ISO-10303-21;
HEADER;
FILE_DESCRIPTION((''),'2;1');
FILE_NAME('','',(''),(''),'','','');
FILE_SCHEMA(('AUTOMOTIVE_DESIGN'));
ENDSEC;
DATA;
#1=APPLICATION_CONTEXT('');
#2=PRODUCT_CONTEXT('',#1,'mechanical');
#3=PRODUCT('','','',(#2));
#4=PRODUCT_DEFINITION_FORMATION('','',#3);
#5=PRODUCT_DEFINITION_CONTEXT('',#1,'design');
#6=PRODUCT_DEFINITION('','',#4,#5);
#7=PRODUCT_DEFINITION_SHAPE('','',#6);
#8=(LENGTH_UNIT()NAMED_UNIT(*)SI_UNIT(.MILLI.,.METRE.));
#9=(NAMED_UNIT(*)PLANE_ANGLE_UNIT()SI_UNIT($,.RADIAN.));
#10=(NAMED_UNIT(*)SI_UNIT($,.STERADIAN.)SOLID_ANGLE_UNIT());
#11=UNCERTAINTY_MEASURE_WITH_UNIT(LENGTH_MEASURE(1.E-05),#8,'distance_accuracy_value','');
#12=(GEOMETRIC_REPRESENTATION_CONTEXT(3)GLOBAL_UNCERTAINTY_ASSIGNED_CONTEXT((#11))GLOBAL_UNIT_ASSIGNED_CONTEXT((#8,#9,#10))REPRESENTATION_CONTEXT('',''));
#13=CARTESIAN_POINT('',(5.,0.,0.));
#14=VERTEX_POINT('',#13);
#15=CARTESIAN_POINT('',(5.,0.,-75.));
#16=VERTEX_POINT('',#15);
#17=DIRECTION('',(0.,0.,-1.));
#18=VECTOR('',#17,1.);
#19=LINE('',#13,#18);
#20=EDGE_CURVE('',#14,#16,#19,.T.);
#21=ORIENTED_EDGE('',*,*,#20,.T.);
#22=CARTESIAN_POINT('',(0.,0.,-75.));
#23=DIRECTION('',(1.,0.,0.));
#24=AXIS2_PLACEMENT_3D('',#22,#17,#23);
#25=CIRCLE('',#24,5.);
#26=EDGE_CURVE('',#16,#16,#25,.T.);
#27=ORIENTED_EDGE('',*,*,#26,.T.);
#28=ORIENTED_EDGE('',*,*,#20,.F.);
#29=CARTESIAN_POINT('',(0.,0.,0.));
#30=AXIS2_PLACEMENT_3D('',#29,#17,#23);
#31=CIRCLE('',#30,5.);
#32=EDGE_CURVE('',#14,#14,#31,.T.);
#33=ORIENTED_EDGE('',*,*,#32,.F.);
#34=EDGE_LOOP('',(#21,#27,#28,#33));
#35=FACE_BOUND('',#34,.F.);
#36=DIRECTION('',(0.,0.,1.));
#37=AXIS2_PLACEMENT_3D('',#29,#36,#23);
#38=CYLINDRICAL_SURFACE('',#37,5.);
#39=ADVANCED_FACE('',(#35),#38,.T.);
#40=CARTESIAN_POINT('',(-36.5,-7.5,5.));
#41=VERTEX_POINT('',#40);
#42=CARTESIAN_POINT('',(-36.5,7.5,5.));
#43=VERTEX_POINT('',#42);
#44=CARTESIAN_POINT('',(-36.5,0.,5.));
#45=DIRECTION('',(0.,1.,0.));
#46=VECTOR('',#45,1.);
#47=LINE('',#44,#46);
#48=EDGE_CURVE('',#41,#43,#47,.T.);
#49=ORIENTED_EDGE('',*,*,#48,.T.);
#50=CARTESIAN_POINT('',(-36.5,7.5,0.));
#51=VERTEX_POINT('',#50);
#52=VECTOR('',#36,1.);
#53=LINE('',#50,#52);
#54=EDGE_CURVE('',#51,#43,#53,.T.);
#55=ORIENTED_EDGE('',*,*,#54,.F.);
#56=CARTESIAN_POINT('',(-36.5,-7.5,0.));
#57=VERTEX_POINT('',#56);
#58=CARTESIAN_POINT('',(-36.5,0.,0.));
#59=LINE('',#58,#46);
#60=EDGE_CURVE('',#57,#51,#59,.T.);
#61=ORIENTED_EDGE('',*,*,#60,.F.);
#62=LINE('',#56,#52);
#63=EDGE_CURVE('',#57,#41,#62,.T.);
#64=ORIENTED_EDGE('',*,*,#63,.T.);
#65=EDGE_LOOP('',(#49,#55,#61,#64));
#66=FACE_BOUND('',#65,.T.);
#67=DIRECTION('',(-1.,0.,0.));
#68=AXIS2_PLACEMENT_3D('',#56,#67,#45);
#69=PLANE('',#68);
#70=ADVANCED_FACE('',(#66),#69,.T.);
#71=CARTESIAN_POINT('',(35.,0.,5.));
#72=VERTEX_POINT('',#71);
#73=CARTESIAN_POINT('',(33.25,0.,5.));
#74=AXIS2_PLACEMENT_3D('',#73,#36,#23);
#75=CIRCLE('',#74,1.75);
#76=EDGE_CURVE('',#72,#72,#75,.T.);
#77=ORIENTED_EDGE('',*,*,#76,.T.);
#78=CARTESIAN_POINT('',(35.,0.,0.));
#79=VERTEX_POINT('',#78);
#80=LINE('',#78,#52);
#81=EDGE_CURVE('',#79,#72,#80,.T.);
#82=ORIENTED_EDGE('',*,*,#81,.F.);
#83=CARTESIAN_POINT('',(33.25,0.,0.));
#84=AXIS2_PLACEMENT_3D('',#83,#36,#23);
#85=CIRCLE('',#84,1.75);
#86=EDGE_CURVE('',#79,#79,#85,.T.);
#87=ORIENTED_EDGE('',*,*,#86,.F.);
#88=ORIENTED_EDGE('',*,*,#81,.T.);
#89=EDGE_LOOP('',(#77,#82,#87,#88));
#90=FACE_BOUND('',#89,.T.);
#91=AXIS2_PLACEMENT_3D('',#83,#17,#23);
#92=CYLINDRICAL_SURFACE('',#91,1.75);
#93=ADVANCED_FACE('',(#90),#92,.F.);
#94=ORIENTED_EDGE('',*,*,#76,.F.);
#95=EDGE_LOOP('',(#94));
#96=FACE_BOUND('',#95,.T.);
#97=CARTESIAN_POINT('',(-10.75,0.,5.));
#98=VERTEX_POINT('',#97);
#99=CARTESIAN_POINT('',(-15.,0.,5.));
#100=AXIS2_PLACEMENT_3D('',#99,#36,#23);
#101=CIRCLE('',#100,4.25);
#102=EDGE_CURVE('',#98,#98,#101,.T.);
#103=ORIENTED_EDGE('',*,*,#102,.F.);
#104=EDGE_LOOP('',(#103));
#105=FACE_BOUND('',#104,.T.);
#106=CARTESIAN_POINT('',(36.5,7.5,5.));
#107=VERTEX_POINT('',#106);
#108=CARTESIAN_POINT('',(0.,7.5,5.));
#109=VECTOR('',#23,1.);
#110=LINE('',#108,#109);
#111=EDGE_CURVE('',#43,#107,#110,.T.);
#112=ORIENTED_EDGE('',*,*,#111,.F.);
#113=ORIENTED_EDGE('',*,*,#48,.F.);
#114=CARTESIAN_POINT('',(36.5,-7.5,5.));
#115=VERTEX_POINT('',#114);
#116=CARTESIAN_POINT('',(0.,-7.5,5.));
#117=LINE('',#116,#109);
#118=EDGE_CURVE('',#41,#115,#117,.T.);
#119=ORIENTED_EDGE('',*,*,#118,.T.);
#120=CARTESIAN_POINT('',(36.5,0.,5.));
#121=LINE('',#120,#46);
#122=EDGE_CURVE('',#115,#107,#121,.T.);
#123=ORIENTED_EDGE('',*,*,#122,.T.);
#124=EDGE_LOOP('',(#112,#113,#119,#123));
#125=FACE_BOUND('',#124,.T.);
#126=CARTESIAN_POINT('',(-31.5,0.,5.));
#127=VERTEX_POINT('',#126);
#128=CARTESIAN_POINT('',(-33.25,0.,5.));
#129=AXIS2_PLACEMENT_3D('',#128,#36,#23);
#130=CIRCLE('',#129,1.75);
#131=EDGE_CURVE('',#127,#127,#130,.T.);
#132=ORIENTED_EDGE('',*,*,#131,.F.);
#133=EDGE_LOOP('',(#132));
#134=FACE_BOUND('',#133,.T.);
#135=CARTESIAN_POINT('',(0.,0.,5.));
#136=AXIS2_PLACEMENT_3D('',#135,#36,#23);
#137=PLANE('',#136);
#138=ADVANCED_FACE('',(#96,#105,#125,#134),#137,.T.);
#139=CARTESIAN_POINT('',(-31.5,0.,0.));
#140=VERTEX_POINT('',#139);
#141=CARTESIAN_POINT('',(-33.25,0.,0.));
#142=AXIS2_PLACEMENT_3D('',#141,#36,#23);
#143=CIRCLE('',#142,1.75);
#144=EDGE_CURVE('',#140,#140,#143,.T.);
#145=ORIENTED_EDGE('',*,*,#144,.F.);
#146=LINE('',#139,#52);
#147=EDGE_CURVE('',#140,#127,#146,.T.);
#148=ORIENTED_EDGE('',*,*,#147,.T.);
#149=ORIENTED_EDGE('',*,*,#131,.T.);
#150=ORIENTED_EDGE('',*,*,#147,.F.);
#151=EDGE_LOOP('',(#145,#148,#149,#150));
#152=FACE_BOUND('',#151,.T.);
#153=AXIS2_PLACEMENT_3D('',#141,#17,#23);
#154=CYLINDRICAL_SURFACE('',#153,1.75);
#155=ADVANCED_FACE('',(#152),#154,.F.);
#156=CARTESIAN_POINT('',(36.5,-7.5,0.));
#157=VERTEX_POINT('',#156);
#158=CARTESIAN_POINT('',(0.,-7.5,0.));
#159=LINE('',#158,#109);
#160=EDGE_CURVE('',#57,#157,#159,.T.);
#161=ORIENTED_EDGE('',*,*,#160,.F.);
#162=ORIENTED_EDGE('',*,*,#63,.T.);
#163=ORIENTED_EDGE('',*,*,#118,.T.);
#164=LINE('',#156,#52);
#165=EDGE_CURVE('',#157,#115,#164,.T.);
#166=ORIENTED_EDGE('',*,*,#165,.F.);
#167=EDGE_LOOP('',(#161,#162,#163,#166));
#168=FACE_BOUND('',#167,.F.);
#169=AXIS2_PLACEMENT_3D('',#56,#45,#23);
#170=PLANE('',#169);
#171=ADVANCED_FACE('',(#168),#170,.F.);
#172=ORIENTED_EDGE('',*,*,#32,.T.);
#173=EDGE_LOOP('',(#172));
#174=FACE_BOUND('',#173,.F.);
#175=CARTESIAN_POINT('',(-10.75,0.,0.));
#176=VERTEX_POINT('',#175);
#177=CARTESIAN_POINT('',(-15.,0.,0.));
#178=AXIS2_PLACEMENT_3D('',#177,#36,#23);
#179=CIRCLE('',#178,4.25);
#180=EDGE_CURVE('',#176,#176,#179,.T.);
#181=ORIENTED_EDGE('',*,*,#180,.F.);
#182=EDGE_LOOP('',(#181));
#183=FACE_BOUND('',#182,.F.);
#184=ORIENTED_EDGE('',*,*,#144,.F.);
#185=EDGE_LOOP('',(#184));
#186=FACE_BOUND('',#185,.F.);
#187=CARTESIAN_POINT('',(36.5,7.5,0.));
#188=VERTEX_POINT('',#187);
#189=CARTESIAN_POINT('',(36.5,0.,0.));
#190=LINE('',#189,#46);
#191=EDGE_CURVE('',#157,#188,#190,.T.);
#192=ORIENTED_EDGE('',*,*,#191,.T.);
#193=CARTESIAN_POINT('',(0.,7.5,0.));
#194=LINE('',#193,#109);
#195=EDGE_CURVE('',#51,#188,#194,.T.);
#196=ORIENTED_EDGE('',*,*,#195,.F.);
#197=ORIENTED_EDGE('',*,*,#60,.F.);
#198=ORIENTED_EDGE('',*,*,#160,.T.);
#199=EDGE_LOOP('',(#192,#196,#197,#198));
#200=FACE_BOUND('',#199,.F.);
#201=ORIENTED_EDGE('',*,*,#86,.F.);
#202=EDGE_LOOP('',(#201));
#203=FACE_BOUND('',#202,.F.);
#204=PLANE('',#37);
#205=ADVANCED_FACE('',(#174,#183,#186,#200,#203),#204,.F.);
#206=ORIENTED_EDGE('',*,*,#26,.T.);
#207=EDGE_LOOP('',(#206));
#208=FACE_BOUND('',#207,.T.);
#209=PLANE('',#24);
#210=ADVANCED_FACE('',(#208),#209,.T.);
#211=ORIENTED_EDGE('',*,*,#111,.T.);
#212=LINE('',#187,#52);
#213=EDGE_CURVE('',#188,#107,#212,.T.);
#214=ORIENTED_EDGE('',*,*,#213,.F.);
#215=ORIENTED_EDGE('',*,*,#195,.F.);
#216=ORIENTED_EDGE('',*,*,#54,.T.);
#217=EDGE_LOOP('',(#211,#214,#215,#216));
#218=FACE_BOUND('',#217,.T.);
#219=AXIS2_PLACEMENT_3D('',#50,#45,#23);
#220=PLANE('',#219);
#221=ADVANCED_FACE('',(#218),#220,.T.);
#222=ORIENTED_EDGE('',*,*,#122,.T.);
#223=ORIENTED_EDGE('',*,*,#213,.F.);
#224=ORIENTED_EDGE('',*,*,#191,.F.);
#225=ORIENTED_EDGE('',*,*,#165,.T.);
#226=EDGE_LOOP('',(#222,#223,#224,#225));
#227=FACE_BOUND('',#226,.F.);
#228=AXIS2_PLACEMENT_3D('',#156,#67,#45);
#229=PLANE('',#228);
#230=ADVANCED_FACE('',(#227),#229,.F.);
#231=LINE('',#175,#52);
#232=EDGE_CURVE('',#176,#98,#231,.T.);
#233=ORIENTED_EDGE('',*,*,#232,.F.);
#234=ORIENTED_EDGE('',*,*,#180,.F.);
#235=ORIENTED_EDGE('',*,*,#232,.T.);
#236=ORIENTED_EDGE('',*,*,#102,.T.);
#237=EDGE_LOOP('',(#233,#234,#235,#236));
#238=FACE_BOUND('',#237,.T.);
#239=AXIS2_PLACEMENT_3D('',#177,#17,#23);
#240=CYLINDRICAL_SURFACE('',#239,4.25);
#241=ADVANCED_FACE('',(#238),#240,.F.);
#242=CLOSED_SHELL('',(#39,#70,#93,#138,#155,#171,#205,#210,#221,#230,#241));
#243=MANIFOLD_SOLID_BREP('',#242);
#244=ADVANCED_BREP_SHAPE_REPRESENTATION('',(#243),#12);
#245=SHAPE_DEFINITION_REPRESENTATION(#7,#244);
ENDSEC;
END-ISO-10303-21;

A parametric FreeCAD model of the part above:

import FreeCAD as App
import Part
import Sketcher
from FreeCAD import Vector

doc = App.newDocument("Part")
body = doc.addObject("PartDesign::Body", "Body")

sketch1 = body.newObject("Sketcher::SketchObject", "Sketch")
sketch1.AttachmentSupport = (doc.getObject("XY_Plane"), [""])
sketch1.MapMode = "FlatFace"
sketch1.addGeometry([
    Part.LineSegment(Vector(-36.5, 7.5, 0), Vector(-36.5, -7.5, 0)),
    Part.LineSegment(Vector(-36.5, -7.5, 0), Vector(36.5, -7.5, 0)),
    Part.LineSegment(Vector(36.5, -7.5, 0), Vector(36.5, 7.5, 0)),
    Part.LineSegment(Vector(36.5, 7.5, 0), Vector(-36.5, 7.5, 0)),
    Part.Circle(Vector(-33.2, 0, 0), Vector(0, 0, 1), 1.8),
    Part.Circle(Vector(-15, 0, 0), Vector(0, 0, 1), 4.2),
    Part.Circle(Vector(33.2, 0, 0), Vector(0, 0, 1), 1.8),
], False)
sketch1.addConstraint([
    Sketcher.Constraint("Coincident", 0, 2, 1, 1),
    Sketcher.Constraint("Coincident", 1, 2, 2, 1),
    Sketcher.Constraint("Coincident", 2, 2, 3, 1),
    Sketcher.Constraint("Coincident", 3, 2, 0, 1),
    Sketcher.Constraint("Vertical", 0),
    Sketcher.Constraint("Horizontal", 1),
    Sketcher.Constraint("Vertical", 2),
    Sketcher.Constraint("Horizontal", 3),
    Sketcher.Constraint("Equal", 4, 6),
    Sketcher.Constraint("Symmetric", 4, 3, 6, 3, -1, 1),
    Sketcher.Constraint("Symmetric", 0, 2, 2, 2, -1, 1),
    Sketcher.Constraint("PointOnObject", 4, 3, -1),
    Sketcher.Constraint("PointOnObject", 5, 3, -1),
    Sketcher.Constraint("Diameter", 4, 3.5),
    Sketcher.Constraint("Diameter", 5, 8.5),
    Sketcher.Constraint("DistanceX", 1, 1, 1, 2, 73.0),
    Sketcher.Constraint("DistanceY", 0, 2, 0, 1, 15.0),
    Sketcher.Constraint("DistanceX", 5, 3, -1, 1, 15.0),
    Sketcher.Constraint("DistanceX", 4, 3, 6, 3, 66.5),
])
pad1 = body.newObject("PartDesign::Pad", "Pad")
pad1.Profile = sketch1
pad1.Length = 5

sketch2 = body.newObject("Sketcher::SketchObject", "Sketch001")
sketch2.AttachmentSupport = (doc.getObject("XY_Plane"), [""])
sketch2.MapMode = "FlatFace"
sketch2.addGeometry(Part.Circle(Vector(0, 0, 0), Vector(0, 0, 1), 5), False)
sketch2.addConstraint([
    Sketcher.Constraint("Coincident", 0, 3, -1, 1),
    Sketcher.Constraint("Diameter", 0, 10.0),
])
pad2 = body.newObject("PartDesign::Pad", "Pad001")
pad2.Profile = sketch2
pad2.Length = 75
pad2.Reversed = True

doc.recompute()
